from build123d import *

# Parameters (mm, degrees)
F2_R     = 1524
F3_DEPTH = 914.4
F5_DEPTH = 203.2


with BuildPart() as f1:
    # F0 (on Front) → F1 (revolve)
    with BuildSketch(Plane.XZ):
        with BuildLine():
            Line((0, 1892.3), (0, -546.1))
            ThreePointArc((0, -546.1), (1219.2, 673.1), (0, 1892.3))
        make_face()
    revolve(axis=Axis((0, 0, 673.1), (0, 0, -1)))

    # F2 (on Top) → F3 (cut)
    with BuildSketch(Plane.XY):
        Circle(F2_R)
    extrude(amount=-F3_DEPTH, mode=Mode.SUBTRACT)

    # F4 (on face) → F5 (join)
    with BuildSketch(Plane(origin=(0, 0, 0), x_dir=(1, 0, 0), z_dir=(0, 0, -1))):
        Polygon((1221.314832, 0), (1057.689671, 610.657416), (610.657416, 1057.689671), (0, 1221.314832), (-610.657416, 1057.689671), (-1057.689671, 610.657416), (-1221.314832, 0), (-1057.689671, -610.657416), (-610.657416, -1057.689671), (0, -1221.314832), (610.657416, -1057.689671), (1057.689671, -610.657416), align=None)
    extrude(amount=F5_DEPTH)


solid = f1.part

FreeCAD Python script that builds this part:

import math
import FreeCAD as App
import Part
import Sketcher
Q = App.Units.Quantity

doc = App.newDocument("Part")
params = doc.addObject("Spreadsheet::Sheet", "Params")
for row, (alias, value) in enumerate([
    ("sketch1_radius", "48 in"),
    ("revolution_angle", "360 deg"),
    ("sketch2_diameter", "120 in"),
    ("pocket1_length", "36 in"),
    ("pad1_length", "8 in"),
], start=1):
    params.set(f"A{row}", alias)
    params.set(f"B{row}", "=" + value)
    params.setAlias(f"B{row}", alias)

body = doc.addObject("PartDesign::Body", "Body")

sketch1 = body.newObject("Sketcher::SketchObject", "Sketch")
sketch1.AttachmentSupport = (doc.getObject("XZ_Plane"), [""])
sketch1.MapMode = "FlatFace"
sketch1.addGeometry([
    Part.LineSegment(App.Vector(0, 1892, 0), App.Vector(0, -546, 0)),
    Part.ArcOfCircle(Part.Circle(App.Vector(0, 673, 0), App.Vector(0, 0, 1), 1219), math.radians(-90), math.radians(90)),
], False)
sketch1.addConstraint([
    Sketcher.Constraint("Coincident", 0, 1, 1, 2),
    Sketcher.Constraint("Coincident", 1, 1, 0, 2),
    Sketcher.Constraint("Vertical", 0),
    Sketcher.Constraint("PointOnObject", 1, 3, -2),
    Sketcher.Constraint("PointOnObject", 0, 1, -2),
    Sketcher.Constraint("Radius", 1, Q("48 in")),
    Sketcher.Constraint("DistanceY", -1, 1, 1, 3, Q("26.5 in")),
])
sketch1.setExpression("Constraints[5]", "Params.sketch1_radius")
revolution = body.newObject("PartDesign::Revolution", "Revolution")
revolution.Profile = sketch1
revolution.ReferenceAxis = (sketch1, ["V_Axis"])
revolution.setExpression("Angle", "Params.revolution_angle")

sketch2 = body.newObject("Sketcher::SketchObject", "Sketch001")
sketch2.AttachmentSupport = (doc.getObject("XY_Plane"), [""])
sketch2.MapMode = "FlatFace"
sketch2.addGeometry(Part.Circle(App.Vector(0, 0, 0), App.Vector(0, 0, 1), 1524), False)
sketch2.addConstraint([
    Sketcher.Constraint("Coincident", 0, 3, -1, 1),
    Sketcher.Constraint("Diameter", 0, Q("120 in")),
])
sketch2.setExpression("Constraints[1]", "Params.sketch2_diameter")
pocket1 = body.newObject("PartDesign::Pocket", "Pocket")
pocket1.Profile = sketch2
pocket1.setExpression("Length", "Params.pocket1_length")

sketch3 = body.newObject("Sketcher::SketchObject", "Sketch002")
sketch3.AttachmentSupport = (doc.getObject("XY_Plane"), [""])
sketch3.MapMode = "FlatFace"
sketch3.addGeometry([
    Part.LineSegment(App.Vector(1221, 0, 0), App.Vector(1058, -611, 0)),
    Part.LineSegment(App.Vector(1058, -611, 0), App.Vector(611, -1058, 0)),
    Part.LineSegment(App.Vector(611, -1058, 0), App.Vector(0, -1221, 0)),
    Part.LineSegment(App.Vector(0, -1221, 0), App.Vector(-611, -1058, 0)),
    Part.LineSegment(App.Vector(-611, -1058, 0), App.Vector(-1058, -611, 0)),
    Part.LineSegment(App.Vector(-1058, -611, 0), App.Vector(-1221, 0, 0)),
    Part.LineSegment(App.Vector(-1221, 0, 0), App.Vector(-1058, 611, 0)),
    Part.LineSegment(App.Vector(-1058, 611, 0), App.Vector(-611, 1058, 0)),
    Part.LineSegment(App.Vector(-611, 1058, 0), App.Vector(0, 1221, 0)),
    Part.LineSegment(App.Vector(0, 1221, 0), App.Vector(611, 1058, 0)),
    Part.LineSegment(App.Vector(611, 1058, 0), App.Vector(1058, 611, 0)),
    Part.LineSegment(App.Vector(1058, 611, 0), App.Vector(1221, 0, 0)),
], False)
sketch3.addConstraint([
    Sketcher.Constraint("Coincident", 0, 2, 1, 1),
    Sketcher.Constraint("Coincident", 1, 2, 2, 1),
    Sketcher.Constraint("Coincident", 2, 2, 3, 1),
    Sketcher.Constraint("Coincident", 3, 2, 4, 1),
    Sketcher.Constraint("Coincident", 4, 2, 5, 1),
    Sketcher.Constraint("Coincident", 5, 2, 6, 1),
    Sketcher.Constraint("Coincident", 6, 2, 7, 1),
    Sketcher.Constraint("Coincident", 7, 2, 8, 1),
    Sketcher.Constraint("Coincident", 8, 2, 9, 1),
    Sketcher.Constraint("Coincident", 9, 2, 10, 1),
    Sketcher.Constraint("Coincident", 10, 2, 11, 1),
    Sketcher.Constraint("Coincident", 11, 2, 0, 1),
    Sketcher.Constraint("Symmetric", 0, 2, 6, 2, -1, 1),
    Sketcher.Constraint("Symmetric", 1, 2, 7, 2, -1, 1),
    Sketcher.Constraint("Symmetric", 2, 2, 8, 2, -1, 1),
    Sketcher.Constraint("Symmetric", 3, 2, 9, 2, -1, 1),
    Sketcher.Constraint("Symmetric", 4, 2, 10, 2, -1, 1),
    Sketcher.Constraint("Symmetric", 5, 2, 11, 2, -1, 1),
    Sketcher.Constraint("Symmetric", 1, 2, 3, 2, -2),
    Sketcher.Constraint("Symmetric", 0, 2, 4, 2, -2),
    Sketcher.Constraint("PointOnObject", 2, 2, -2),
    Sketcher.Constraint("PointOnObject", 5, 2, -1),
    Sketcher.Constraint("Perpendicular", 0, 3),
    Sketcher.Constraint("Perpendicular", 1, 4),
    Sketcher.Constraint("Equal", 0, 1),
    Sketcher.Constraint("Equal", 1, 2),
    Sketcher.Constraint("Angle", 0, Q("-105 deg")),
    Sketcher.Constraint("DistanceX", -1, 1, 0, 2, Q("1057.689671 mm")),
])
pad1 = body.newObject("PartDesign::Pad", "Pad")
pad1.Profile = sketch3
pad1.setExpression("Length", "Params.pad1_length")
pad1.Reversed = True

doc.recompute()
